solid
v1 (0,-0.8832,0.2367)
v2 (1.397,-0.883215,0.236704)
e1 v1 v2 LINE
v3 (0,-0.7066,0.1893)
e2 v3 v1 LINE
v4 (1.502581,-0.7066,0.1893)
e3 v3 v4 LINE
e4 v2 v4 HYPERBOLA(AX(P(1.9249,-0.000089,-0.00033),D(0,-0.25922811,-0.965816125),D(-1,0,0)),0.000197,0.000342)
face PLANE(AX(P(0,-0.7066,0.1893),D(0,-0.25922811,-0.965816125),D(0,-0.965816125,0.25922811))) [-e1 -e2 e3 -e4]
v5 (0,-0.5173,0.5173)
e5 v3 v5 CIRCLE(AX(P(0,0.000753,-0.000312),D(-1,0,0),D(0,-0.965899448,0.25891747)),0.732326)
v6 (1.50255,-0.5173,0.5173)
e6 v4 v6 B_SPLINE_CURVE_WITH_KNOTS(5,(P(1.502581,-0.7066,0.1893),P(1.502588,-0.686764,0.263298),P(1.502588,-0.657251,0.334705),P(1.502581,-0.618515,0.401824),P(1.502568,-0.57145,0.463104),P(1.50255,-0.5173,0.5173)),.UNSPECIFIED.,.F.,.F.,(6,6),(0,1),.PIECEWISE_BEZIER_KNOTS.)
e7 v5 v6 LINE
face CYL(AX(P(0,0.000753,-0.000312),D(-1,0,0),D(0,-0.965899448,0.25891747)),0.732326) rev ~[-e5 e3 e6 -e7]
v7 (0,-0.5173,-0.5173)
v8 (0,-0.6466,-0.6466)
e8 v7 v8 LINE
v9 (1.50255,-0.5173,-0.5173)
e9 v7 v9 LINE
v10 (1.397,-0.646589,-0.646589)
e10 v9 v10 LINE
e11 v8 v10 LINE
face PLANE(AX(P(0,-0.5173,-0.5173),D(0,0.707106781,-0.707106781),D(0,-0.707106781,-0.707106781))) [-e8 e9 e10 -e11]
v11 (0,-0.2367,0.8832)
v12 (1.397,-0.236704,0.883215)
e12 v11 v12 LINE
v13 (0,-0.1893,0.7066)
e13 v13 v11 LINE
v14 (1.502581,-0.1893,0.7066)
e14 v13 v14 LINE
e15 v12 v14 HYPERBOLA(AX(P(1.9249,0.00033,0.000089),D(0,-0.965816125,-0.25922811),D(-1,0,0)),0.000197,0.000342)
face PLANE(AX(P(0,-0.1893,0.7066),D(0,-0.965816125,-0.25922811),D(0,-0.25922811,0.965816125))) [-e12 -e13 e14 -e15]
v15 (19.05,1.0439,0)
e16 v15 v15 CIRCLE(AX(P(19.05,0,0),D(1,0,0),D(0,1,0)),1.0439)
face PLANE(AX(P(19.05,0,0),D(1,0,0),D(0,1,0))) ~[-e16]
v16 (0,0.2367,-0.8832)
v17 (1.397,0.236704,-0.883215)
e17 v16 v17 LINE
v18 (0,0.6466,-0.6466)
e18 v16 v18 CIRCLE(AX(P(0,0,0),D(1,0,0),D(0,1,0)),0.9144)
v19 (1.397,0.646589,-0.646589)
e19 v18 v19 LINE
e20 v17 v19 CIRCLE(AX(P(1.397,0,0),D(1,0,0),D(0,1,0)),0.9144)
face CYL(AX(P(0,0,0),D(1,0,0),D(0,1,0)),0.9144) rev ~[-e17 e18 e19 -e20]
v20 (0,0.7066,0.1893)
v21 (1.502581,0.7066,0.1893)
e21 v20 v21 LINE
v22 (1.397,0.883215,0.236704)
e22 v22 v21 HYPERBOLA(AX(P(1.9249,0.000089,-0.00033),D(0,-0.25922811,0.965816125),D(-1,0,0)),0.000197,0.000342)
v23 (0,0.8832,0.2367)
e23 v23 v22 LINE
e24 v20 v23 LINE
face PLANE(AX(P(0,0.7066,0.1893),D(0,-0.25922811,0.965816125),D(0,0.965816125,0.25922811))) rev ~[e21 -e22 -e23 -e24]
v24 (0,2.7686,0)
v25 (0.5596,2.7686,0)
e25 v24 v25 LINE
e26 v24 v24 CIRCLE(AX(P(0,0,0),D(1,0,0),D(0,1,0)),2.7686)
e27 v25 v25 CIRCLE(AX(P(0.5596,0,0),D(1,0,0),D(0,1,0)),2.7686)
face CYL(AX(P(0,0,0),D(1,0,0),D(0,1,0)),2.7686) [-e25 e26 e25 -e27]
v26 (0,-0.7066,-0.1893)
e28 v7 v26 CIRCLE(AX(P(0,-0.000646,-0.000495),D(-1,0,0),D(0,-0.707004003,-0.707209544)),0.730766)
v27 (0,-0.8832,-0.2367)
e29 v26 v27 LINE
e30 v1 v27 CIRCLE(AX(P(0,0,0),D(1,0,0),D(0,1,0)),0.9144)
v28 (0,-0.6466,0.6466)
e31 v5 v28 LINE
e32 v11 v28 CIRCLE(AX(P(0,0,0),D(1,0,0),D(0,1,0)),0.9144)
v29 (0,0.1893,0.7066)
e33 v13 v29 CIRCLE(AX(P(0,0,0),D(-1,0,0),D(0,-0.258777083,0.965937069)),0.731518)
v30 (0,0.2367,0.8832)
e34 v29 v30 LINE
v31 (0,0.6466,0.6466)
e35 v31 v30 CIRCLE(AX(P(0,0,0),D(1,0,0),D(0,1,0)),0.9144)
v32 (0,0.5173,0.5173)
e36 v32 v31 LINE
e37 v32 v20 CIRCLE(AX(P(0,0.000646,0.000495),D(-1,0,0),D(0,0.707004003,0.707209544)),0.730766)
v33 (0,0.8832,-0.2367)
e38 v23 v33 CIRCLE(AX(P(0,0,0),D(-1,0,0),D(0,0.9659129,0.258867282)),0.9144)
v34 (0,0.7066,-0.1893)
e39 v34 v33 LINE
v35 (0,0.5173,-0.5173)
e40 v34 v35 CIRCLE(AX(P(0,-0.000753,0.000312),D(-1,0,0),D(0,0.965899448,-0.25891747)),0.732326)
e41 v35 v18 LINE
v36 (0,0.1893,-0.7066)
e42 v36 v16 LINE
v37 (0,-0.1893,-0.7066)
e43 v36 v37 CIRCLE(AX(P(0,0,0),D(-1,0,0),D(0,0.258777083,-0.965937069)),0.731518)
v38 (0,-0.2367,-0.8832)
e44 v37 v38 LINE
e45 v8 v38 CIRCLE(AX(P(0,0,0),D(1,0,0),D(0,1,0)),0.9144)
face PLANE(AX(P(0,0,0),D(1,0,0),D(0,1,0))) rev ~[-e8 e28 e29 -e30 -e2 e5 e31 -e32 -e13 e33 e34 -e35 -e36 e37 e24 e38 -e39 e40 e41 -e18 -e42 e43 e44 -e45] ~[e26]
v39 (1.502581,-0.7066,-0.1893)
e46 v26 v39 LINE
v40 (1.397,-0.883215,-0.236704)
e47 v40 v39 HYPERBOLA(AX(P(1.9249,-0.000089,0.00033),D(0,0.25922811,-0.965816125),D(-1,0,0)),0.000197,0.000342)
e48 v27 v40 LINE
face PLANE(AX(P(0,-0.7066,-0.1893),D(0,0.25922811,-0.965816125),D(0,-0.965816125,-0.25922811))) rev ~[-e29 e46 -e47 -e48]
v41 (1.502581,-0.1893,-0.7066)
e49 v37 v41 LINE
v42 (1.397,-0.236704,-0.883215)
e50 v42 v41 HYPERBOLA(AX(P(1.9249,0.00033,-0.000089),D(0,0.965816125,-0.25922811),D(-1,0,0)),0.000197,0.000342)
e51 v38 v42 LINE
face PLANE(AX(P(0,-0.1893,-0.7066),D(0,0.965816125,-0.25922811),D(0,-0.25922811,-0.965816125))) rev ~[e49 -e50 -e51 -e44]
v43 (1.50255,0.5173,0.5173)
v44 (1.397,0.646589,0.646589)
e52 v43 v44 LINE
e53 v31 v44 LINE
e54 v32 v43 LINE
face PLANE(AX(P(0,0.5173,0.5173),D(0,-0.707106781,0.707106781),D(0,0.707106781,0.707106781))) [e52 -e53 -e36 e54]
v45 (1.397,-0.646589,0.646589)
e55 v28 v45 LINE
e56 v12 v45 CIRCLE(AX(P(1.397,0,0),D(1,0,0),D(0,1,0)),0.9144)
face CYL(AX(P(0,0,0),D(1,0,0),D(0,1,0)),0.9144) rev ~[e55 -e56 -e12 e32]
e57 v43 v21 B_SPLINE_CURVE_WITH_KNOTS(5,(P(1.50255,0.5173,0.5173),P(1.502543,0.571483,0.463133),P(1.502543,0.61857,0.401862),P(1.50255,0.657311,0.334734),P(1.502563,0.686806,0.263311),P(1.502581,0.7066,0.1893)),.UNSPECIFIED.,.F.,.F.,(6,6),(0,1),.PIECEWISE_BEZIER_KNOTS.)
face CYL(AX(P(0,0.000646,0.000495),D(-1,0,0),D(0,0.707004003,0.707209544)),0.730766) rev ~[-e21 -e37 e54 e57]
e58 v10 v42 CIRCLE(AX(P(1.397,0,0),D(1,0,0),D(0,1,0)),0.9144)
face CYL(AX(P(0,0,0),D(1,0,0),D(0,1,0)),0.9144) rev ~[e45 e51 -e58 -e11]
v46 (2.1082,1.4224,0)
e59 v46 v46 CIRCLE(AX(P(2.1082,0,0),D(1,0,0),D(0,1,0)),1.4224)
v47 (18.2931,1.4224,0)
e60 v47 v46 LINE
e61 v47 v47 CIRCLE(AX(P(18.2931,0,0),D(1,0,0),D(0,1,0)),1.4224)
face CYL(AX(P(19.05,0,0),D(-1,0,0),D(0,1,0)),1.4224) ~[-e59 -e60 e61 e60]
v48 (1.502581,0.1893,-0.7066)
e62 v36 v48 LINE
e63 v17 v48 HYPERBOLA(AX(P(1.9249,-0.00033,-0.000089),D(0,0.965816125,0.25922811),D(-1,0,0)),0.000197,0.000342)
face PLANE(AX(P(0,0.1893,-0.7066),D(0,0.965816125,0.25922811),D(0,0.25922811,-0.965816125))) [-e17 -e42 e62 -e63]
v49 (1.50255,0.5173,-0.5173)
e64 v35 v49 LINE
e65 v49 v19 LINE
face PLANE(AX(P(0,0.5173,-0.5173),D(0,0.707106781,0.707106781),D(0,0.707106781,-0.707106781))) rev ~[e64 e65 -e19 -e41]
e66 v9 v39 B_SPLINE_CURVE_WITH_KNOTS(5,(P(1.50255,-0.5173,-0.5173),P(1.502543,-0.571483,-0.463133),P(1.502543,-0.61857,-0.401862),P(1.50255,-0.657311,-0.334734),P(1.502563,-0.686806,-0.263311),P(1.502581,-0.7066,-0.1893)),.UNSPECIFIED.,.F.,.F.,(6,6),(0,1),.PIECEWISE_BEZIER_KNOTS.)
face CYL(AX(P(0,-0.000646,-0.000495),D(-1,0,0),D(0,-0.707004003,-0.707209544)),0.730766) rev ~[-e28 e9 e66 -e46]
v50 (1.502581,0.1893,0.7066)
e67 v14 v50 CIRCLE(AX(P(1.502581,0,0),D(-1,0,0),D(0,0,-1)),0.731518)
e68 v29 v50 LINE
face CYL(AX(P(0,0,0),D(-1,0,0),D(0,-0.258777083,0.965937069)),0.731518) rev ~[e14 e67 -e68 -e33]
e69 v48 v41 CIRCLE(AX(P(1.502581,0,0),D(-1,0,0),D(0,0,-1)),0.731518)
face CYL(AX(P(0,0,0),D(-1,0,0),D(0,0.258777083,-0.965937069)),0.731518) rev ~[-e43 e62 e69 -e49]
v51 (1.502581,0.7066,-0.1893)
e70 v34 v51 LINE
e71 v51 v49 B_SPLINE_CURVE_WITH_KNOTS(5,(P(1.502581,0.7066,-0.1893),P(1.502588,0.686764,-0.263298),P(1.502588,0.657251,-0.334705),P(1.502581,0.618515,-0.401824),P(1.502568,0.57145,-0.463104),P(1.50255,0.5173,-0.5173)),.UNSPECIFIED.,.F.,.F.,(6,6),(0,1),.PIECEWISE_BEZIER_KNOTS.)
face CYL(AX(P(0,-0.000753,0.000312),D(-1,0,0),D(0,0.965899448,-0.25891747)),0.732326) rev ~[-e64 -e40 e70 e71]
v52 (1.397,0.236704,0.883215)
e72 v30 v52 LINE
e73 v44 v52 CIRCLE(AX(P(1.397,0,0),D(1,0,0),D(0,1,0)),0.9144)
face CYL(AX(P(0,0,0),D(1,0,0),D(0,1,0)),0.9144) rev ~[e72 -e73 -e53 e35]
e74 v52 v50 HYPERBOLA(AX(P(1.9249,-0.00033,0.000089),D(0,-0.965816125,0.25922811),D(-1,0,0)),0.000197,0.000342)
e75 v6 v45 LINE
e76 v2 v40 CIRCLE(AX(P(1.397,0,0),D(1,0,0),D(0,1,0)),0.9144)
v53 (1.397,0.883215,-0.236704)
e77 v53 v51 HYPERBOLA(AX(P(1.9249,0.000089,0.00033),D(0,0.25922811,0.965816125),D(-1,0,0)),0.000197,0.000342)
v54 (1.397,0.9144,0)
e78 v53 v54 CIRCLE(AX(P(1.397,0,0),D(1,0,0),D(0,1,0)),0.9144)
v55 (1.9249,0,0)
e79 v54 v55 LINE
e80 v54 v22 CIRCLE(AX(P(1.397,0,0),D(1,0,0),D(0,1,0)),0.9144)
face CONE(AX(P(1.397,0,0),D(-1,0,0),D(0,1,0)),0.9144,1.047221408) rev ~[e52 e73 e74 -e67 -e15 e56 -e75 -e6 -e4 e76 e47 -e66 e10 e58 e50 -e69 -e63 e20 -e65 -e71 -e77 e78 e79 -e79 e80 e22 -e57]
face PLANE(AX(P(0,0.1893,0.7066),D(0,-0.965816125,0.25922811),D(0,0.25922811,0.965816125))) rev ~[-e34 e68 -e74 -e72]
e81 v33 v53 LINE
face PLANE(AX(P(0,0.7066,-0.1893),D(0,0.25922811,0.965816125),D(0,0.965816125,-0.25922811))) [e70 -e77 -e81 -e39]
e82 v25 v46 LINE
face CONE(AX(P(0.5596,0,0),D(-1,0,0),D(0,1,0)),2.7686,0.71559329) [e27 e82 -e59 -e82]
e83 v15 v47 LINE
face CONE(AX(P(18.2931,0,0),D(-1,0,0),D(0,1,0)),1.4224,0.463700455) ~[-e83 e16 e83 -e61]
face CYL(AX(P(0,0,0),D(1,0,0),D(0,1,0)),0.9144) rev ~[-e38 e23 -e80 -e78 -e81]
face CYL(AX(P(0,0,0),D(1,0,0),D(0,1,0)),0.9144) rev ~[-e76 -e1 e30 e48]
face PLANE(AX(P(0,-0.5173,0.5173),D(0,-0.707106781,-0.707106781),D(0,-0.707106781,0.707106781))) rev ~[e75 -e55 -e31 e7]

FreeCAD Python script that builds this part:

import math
import FreeCAD as App
import Part
import Sketcher
Q = App.Units.Quantity


def edges_at(feature, points):
    """Names of the edges that pass closest to the given points."""
    edges = feature.Shape.Edges
    near = lambda p: min(range(len(edges)), key=lambda i: edges[i].distToShape(Part.Vertex(*p))[0])
    return sorted({f"Edge{near(p) + 1}" for p in points})


def add_polygon(sketch, points):
    """Adds a closed chain of lines whose ends are joined by coincident constraints."""
    first, n = sketch.GeometryCount, len(points)
    for a, b in zip(points, points[1:] + points[:1]):
        sketch.addGeometry(Part.LineSegment(App.Vector(*a, 0), App.Vector(*b, 0)), False)
    for i in range(n):
        sketch.addConstraint(Sketcher.Constraint("Coincident", first + i, 2, first + (i + 1) % n, 1))

doc = App.newDocument("Part")
body = doc.addObject("PartDesign::Body", "Body")

# Sketch on XY plane
sketch1 = body.newObject("Sketcher::SketchObject", "Sketch")
sketch1.AttachmentSupport = (doc.getObject("XY_Plane"), [""])
sketch1.MapMode = "FlatFace"
add_polygon(sketch1, [(1.9249, 0), (19.05, 0), (19.05, 1.4224), (2.1082, 1.4224), (0.5596, 2.7686), (0, 2.7686), (0, 0.9144), (1.397, 0.9144)])  # lines 0-7
sketch1.addConstraint(Sketcher.Constraint("Horizontal", 0))
sketch1.addConstraint(Sketcher.Constraint("Vertical", 1))
sketch1.addConstraint(Sketcher.Constraint("Horizontal", 2))
sketch1.addConstraint(Sketcher.Constraint("Horizontal", 4))
sketch1.addConstraint(Sketcher.Constraint("Vertical", 5))
sketch1.addConstraint(Sketcher.Constraint("Horizontal", 6))
sketch1.addConstraint(Sketcher.Constraint("PointOnObject", 0, 2, -1))
sketch1.addConstraint(Sketcher.Constraint("PointOnObject", 4, 2, -2))
sketch1.addConstraint(Sketcher.Constraint("DistanceX", 6, 1, 6, 2, Q("0.055 in")))
sketch1.addConstraint(Sketcher.Constraint("DistanceX", -1, 1, 0, 2, Q("0.75 in")))
sketch1.addConstraint(Sketcher.Constraint("DistanceX", -1, 1, 2, 2, Q("0.083 in")))
sketch1.addConstraint(Sketcher.Constraint("Angle", 3, Q("138.9995 deg")))
sketch1.addConstraint(Sketcher.Constraint("DistanceY", 1, 1, 1, 2, Q("0.056 in")))
sketch1.addConstraint(Sketcher.Constraint("DistanceY", 5, 2, 5, 1, Q("0.073 in")))
sketch1.addConstraint(Sketcher.Constraint("DistanceY", 5, 2, 2, 2, Q("0.02 in")))
sketch1.addConstraint(Sketcher.Constraint("DistanceX", 0, 1, 0, 2, 17.125))
revolution = body.newObject("PartDesign::Revolution", "Revolution")
revolution.Profile = sketch1
revolution.ReferenceAxis = (sketch1, ["H_Axis"])
revolution.Angle = 360

# Sketch on YZ plane
sketch2 = body.newObject("Sketcher::SketchObject", "Sketch001")
sketch2.AttachmentSupport = (doc.getObject("YZ_Plane"), [""])
sketch2.MapMode = "FlatFace"
sketch2.addGeometry(Part.ArcOfCircle(Part.Circle(App.Vector(0, 0, 0), App.Vector(0, 0, 1), 0.731518), math.radians(75.002489), math.radians(104.997511)), False)
sketch2.addGeometry(Part.LineSegment(App.Vector(-0.1893, 0.7066, 0), App.Vector(-0.2367, 0.8832, 0)), False)
sketch2.addGeometry(Part.ArcOfCircle(Part.Circle(App.Vector(0, 0, 0), App.Vector(0, 0, 1), 0.9144), math.radians(74.997139), math.radians(105.002861)), False)
sketch2.addGeometry(Part.LineSegment(App.Vector(0.2367, 0.8832, 0), App.Vector(0.1893, 0.7066, 0)), False)
sketch2.addGeometry(Part.ArcOfCircle(Part.Circle(App.Vector(0, 0, 0), App.Vector(0, 0, 1), 0.731518), math.radians(-104.997511), math.radians(-75.002489)), False)
sketch2.addGeometry(Part.LineSegment(App.Vector(0.1893, -0.7066, 0), App.Vector(0.2367, -0.8832, 0)), False)
sketch2.addGeometry(Part.ArcOfCircle(Part.Circle(App.Vector(0, 0, 0), App.Vector(0, 0, 1), 0.9144), math.radians(-105.002861), math.radians(-74.997139)), False)
sketch2.addGeometry(Part.LineSegment(App.Vector(-0.2367, -0.8832, 0), App.Vector(-0.1893, -0.7066, 0)), False)
sketch2.addGeometry(Part.ArcOfCircle(Part.Circle(App.Vector(0, 0, 0), App.Vector(0, 0, 1), 0.9144), math.radians(15.002861), math.radians(45)), False)
sketch2.addGeometry(Part.LineSegment(App.Vector(0.8832, 0.2367, 0), App.Vector(0.7066, 0.1893, 0)), False)
sketch2.addGeometry(Part.ArcOfCircle(Part.Circle(App.Vector(0, 0, 0), App.Vector(0, 0, 1), 0.731518), math.radians(14.997511), math.radians(45)), False)
sketch2.addGeometry(Part.LineSegment(App.Vector(0.5173, 0.5173, 0), App.Vector(0.6466, 0.6466, 0)), False)
sketch2.addGeometry(Part.LineSegment(App.Vector(0.7066, -0.1893, 0), App.Vector(0.8832, -0.2367, 0)), False)
sketch2.addGeometry(Part.ArcOfCircle(Part.Circle(App.Vector(0, 0, 0), App.Vector(0, 0, 1), 0.9144), math.radians(-45), math.radians(-15.002861)), False)
sketch2.addGeometry(Part.LineSegment(App.Vector(0.6466, -0.6466, 0), App.Vector(0.5173, -0.5173, 0)), False)
sketch2.addGeometry(Part.ArcOfCircle(Part.Circle(App.Vector(0, 0, 0), App.Vector(0, 0, 1), 0.731573), math.radians(-45), math.radians(-14.997511)), False)
sketch2.addGeometry(Part.ArcOfCircle(Part.Circle(App.Vector(0, 0, 0), App.Vector(0, 0, 1), 0.9144), math.radians(-164.997139), math.radians(-135)), False)
sketch2.addGeometry(Part.LineSegment(App.Vector(-0.8832, -0.2367, 0), App.Vector(-0.7066, -0.1893, 0)), False)
sketch2.addGeometry(Part.ArcOfCircle(Part.Circle(App.Vector(0, 0, 0), App.Vector(0, 0, 1), 0.731518), math.radians(-165.002489), math.radians(-135)), False)
sketch2.addGeometry(Part.LineSegment(App.Vector(-0.5173, -0.5173, 0), App.Vector(-0.6466, -0.6466, 0)), False)
sketch2.addGeometry(Part.LineSegment(App.Vector(-0.7066, 0.1893, 0), App.Vector(-0.8832, 0.2367, 0)), False)
sketch2.addGeometry(Part.ArcOfCircle(Part.Circle(App.Vector(0, 0, 0), App.Vector(0, 0, 1), 0.9144), math.radians(135), math.radians(164.997139)), False)
sketch2.addGeometry(Part.LineSegment(App.Vector(-0.6466, 0.6466, 0), App.Vector(-0.5173, 0.5173, 0)), False)
sketch2.addGeometry(Part.ArcOfCircle(Part.Circle(App.Vector(0, 0, 0), App.Vector(0, 0, 1), 0.731573), math.radians(135), math.radians(165.002489)), False)
sketch2.addConstraint(Sketcher.Constraint("Coincident", 0, 2, 1, 1))
sketch2.addConstraint(Sketcher.Constraint("Coincident", 1, 2, 2, 2))
sketch2.addConstraint(Sketcher.Constraint("Coincident", 2, 1, 3, 1))
sketch2.addConstraint(Sketcher.Constraint("Coincident", 3, 2, 0, 1))
sketch2.addConstraint(Sketcher.Constraint("Coincident", 4, 2, 5, 1))
sketch2.addConstraint(Sketcher.Constraint("Coincident", 5, 2, 6, 2))
sketch2.addConstraint(Sketcher.Constraint("Coincident", 6, 1, 7, 1))
sketch2.addConstraint(Sketcher.Constraint("Coincident", 7, 2, 4, 1))
sketch2.addConstraint(Sketcher.Constraint("Coincident", 8, 1, 9, 1))
sketch2.addConstraint(Sketcher.Constraint("Coincident", 9, 2, 10, 1))
sketch2.addConstraint(Sketcher.Constraint("Coincident", 10, 2, 11, 1))
sketch2.addConstraint(Sketcher.Constraint("Coincident", 11, 2, 8, 2))
sketch2.addConstraint(Sketcher.Constraint("Coincident", 12, 2, 13, 2))
sketch2.addConstraint(Sketcher.Constraint("Coincident", 13, 1, 14, 1))
sketch2.addConstraint(Sketcher.Constraint("Coincident", 14, 2, 15, 1))
sketch2.addConstraint(Sketcher.Constraint("Coincident", 15, 2, 12, 1))
sketch2.addConstraint(Sketcher.Constraint("Coincident", 16, 1, 17, 1))
sketch2.addConstraint(Sketcher.Constraint("Coincident", 17, 2, 18, 1))
sketch2.addConstraint(Sketcher.Constraint("Coincident", 18, 2, 19, 1))
sketch2.addConstraint(Sketcher.Constraint("Coincident", 19, 2, 16, 2))
sketch2.addConstraint(Sketcher.Constraint("Coincident", 20, 2, 21, 2))
sketch2.addConstraint(Sketcher.Constraint("Coincident", 21, 1, 22, 1))
sketch2.addConstraint(Sketcher.Constraint("Coincident", 22, 2, 23, 1))
sketch2.addConstraint(Sketcher.Constraint("Coincident", 23, 2, 20, 1))
sketch2.addConstraint(Sketcher.Constraint("Coincident", 0, 3, -1, 1))
sketch2.addConstraint(Sketcher.Constraint("Coincident", 2, 3, -1, 1))
sketch2.addConstraint(Sketcher.Constraint("Coincident", 4, 3, -1, 1))
sketch2.addConstraint(Sketcher.Constraint("Coincident", 6, 3, -1, 1))
sketch2.addConstraint(Sketcher.Constraint("Coincident", 8, 3, -1, 1))
sketch2.addConstraint(Sketcher.Constraint("Coincident", 10, 3, -1, 1))
sketch2.addConstraint(Sketcher.Constraint("Coincident", 13, 3, -1, 1))
sketch2.addConstraint(Sketcher.Constraint("Coincident", 15, 3, -1, 1))
sketch2.addConstraint(Sketcher.Constraint("Coincident", 16, 3, -1, 1))
sketch2.addConstraint(Sketcher.Constraint("Coincident", 18, 3, -1, 1))
sketch2.addConstraint(Sketcher.Constraint("Coincident", 21, 3, -1, 1))
sketch2.addConstraint(Sketcher.Constraint("Coincident", 23, 3, -1, 1))
sketch2.addConstraint(Sketcher.Constraint("Equal", 0, 4))
sketch2.addConstraint(Sketcher.Constraint("Equal", 2, 6))
sketch2.addConstraint(Sketcher.Constraint("Equal", 6, 8))
sketch2.addConstraint(Sketcher.Constraint("Equal", 4, 10))
sketch2.addConstraint(Sketcher.Constraint("Equal", 8, 13))
sketch2.addConstraint(Sketcher.Constraint("Equal", 10, 15))
sketch2.addConstraint(Sketcher.Constraint("Equal", 13, 16))
sketch2.addConstraint(Sketcher.Constraint("Equal", 15, 18))
sketch2.addConstraint(Sketcher.Constraint("Equal", 16, 21))
sketch2.addConstraint(Sketcher.Constraint("Equal", 18, 23))
sketch2.addConstraint(Sketcher.Constraint("Parallel", 1, 5))
sketch2.addConstraint(Sketcher.Constraint("Parallel", 3, 7))
sketch2.addConstraint(Sketcher.Constraint("Perpendicular", 5, 9))
sketch2.addConstraint(Sketcher.Constraint("Perpendicular", 7, 12))
sketch2.addConstraint(Sketcher.Constraint("Perpendicular", 11, 14))
sketch2.addConstraint(Sketcher.Constraint("Parallel", 9, 17))
sketch2.addConstraint(Sketcher.Constraint("Perpendicular", 14, 19))
sketch2.addConstraint(Sketcher.Constraint("Parallel", 12, 20))
sketch2.addConstraint(Sketcher.Constraint("Perpendicular", 19, 22))
sketch2.addConstraint(Sketcher.Constraint("Horizontal", 1, 2, 2, 1))
sketch2.addConstraint(Sketcher.Constraint("Horizontal", 0, 2, 3, 2))
sketch2.addConstraint(Sketcher.Constraint("Horizontal", 5, 2, 6, 1))
sketch2.addConstraint(Sketcher.Constraint("Horizontal", 12, 2, 16, 1))
sketch2.addConstraint(Sketcher.Constraint("Horizontal", 14, 2, 18, 2))
sketch2.addConstraint(Sketcher.Constraint("Horizontal", 13, 1, 19, 2))
sketch2.addConstraint(Sketcher.Constraint("Horizontal", 8, 1, 20, 2))
sketch2.addConstraint(Sketcher.Constraint("Horizontal", 11, 2, 21, 1))
sketch2.addConstraint(Sketcher.Constraint("Vertical", 3, 2, 4, 2))
sketch2.addConstraint(Sketcher.Constraint("Vertical", 8, 1, 12, 2))
sketch2.addConstraint(Sketcher.Constraint("Vertical", 11, 2, 13, 1))
sketch2.addConstraint(Sketcher.Constraint("Radius", 2, Q("0.036 in")))
sketch2.addConstraint(Sketcher.Constraint("Radius", 0, Q("0.0288 in")))
sketch2.addConstraint(Sketcher.Constraint("DistanceX", 3, 2, 11, 2, Q("0.018 in")))
sketch2.addConstraint(Sketcher.Constraint("DistanceY", 9, 2, 11, 2, Q("0.018 in")))
sketch2.addConstraint(Sketcher.Constraint("DistanceX", 0, 2, 3, 2, Q("0.0149 in")))
sketch2.addConstraint(Sketcher.Constraint("DistanceY", 8, 1, 3, 2, Q("0.0185 in")))
pad1 = body.newObject("PartDesign::Pad", "Pad")
pad1.Profile = sketch2
pad1.Type = "UpToFirst"
doc.recompute()

chamfer = body.newObject("PartDesign::Chamfer", "Chamfer")
chamfer.Base = (pad1, edges_at(pad1, [(19.05, -1.422, 0)]))
chamfer.ChamferType = "Two distances"
chamfer.Size = Q("0.0149016 in")
chamfer.Size2 = Q("0.0297992 in")

doc.recompute()
